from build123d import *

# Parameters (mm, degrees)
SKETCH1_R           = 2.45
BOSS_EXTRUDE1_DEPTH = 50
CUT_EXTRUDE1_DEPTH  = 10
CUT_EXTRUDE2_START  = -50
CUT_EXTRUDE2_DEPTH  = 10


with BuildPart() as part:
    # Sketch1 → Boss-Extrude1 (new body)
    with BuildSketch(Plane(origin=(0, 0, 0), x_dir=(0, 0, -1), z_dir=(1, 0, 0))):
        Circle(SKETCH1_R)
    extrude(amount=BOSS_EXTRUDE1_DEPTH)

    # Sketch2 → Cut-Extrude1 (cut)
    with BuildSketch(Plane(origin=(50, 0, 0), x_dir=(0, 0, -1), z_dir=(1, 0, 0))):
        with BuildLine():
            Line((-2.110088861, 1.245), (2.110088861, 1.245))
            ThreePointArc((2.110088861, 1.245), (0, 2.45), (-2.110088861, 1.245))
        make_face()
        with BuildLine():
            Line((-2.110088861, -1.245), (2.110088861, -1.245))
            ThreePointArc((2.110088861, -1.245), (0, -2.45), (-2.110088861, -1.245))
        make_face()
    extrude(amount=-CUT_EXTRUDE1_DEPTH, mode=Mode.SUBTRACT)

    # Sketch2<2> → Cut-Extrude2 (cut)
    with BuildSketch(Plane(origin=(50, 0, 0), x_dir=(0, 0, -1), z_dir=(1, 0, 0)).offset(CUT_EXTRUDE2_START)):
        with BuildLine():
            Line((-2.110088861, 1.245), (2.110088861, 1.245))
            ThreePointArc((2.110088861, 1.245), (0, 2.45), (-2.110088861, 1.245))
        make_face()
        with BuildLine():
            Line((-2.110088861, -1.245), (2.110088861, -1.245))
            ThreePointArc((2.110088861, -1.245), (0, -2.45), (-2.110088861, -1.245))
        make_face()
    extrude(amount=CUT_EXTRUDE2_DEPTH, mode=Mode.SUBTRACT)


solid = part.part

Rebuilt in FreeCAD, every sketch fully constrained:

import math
import FreeCAD as App
import Part
import Sketcher

V = App.Vector
Q = App.Units.Quantity

doc = App.newDocument("Part")
body = doc.addObject("PartDesign::Body", "Body")

sketch1 = body.newObject("Sketcher::SketchObject", "Sketch")
sketch1.AttachmentSupport = (doc.getObject("YZ_Plane"), [""])
sketch1.MapMode = "FlatFace"
sketch1.addGeometry(Part.Circle(V(0, 0, 0), V(0, 0, 1), 2.5), False)
sketch1.addConstraint([
    Sketcher.Constraint("Coincident", 0, 3, -1, 1),
    Sketcher.Constraint("Diameter", 0, Q("4.9 mm")),
])
pad1 = body.newObject("PartDesign::Pad", "Pad")
pad1.Profile = sketch1
pad1.Length = 50

sketch2 = body.newObject("Sketcher::SketchObject", "Sketch001")
sketch2.AttachmentSupport = (doc.getObject("YZ_Plane"), [""])
sketch2.MapMode = "FlatFace"
sketch2.AttachmentOffset = App.Placement(V(0, 0, 50), App.Rotation())
sketch2.addGeometry([
    Part.LineSegment(V(1.2, 2.1, 0), V(1.2, -2.1, 0)),
    Part.ArcOfCircle(Part.Circle(V(0, 0, 0), V(0, 0, 1), 2.5), math.radians(-59), math.radians(59)),
    Part.LineSegment(V(-1.2, -2.1, 0), V(-1.2, 2.1, 0)),
    Part.ArcOfCircle(Part.Circle(V(0, 0, 0), V(0, 0, 1), 2.5), math.radians(121), math.radians(239)),
], False)
sketch2.addConstraint([
    Sketcher.Constraint("Coincident", 0, 1, 1, 2),
    Sketcher.Constraint("Coincident", 1, 1, 0, 2),
    Sketcher.Constraint("Coincident", 2, 1, 3, 2),
    Sketcher.Constraint("Coincident", 3, 1, 2, 2),
    Sketcher.Constraint("Vertical", 0),
    Sketcher.Constraint("Vertical", 2),
    Sketcher.Constraint("Coincident", 1, 3, -1, 1),
    Sketcher.Constraint("Coincident", 3, 3, -1, 1),
    Sketcher.Constraint("Equal", 1, 3),
    Sketcher.Constraint("Horizontal", 1, 1, 2, 1),
    Sketcher.Constraint("Radius", 1, Q("2.45 mm")),
    Sketcher.Constraint("DistanceX", 2, 1, 1, 1, Q("2.49 mm")),
])
pocket1 = body.newObject("PartDesign::Pocket", "Pocket")
pocket1.Profile = sketch2
pocket1.Length = 10

sketch3 = body.newObject("Sketcher::SketchObject", "Sketch002")
sketch3.AttachmentSupport = (doc.getObject("YZ_Plane"), [""])
sketch3.MapMode = "FlatFace"
sketch3.addGeometry([
    Part.LineSegment(V(1.2, 2.1, 0), V(1.2, -2.1, 0)),
    Part.ArcOfCircle(Part.Circle(V(0, 0, 0), V(0, 0, 1), 2.5), math.radians(-59), math.radians(59)),
    Part.LineSegment(V(-1.2, -2.1, 0), V(-1.2, 2.1, 0)),
    Part.ArcOfCircle(Part.Circle(V(0, 0, 0), V(0, 0, 1), 2.5), math.radians(121), math.radians(239)),
], False)
sketch3.addConstraint([
    Sketcher.Constraint("Coincident", 0, 1, 1, 2),
    Sketcher.Constraint("Coincident", 1, 1, 0, 2),
    Sketcher.Constraint("Coincident", 2, 1, 3, 2),
    Sketcher.Constraint("Coincident", 3, 1, 2, 2),
    Sketcher.Constraint("Vertical", 0),
    Sketcher.Constraint("Vertical", 2),
    Sketcher.Constraint("Coincident", 1, 3, -1, 1),
    Sketcher.Constraint("Coincident", 3, 3, -1, 1),
    Sketcher.Constraint("Equal", 1, 3),
    Sketcher.Constraint("Horizontal", 1, 1, 2, 1),
    Sketcher.Constraint("Radius", 1, Q("2.45 mm")),
    Sketcher.Constraint("DistanceX", 2, 1, 1, 1, Q("2.49 mm")),
])
pocket2 = body.newObject("PartDesign::Pocket", "Pocket001")
pocket2.Profile = sketch3
pocket2.Length = 10
pocket2.Reversed = True

doc.recompute()
